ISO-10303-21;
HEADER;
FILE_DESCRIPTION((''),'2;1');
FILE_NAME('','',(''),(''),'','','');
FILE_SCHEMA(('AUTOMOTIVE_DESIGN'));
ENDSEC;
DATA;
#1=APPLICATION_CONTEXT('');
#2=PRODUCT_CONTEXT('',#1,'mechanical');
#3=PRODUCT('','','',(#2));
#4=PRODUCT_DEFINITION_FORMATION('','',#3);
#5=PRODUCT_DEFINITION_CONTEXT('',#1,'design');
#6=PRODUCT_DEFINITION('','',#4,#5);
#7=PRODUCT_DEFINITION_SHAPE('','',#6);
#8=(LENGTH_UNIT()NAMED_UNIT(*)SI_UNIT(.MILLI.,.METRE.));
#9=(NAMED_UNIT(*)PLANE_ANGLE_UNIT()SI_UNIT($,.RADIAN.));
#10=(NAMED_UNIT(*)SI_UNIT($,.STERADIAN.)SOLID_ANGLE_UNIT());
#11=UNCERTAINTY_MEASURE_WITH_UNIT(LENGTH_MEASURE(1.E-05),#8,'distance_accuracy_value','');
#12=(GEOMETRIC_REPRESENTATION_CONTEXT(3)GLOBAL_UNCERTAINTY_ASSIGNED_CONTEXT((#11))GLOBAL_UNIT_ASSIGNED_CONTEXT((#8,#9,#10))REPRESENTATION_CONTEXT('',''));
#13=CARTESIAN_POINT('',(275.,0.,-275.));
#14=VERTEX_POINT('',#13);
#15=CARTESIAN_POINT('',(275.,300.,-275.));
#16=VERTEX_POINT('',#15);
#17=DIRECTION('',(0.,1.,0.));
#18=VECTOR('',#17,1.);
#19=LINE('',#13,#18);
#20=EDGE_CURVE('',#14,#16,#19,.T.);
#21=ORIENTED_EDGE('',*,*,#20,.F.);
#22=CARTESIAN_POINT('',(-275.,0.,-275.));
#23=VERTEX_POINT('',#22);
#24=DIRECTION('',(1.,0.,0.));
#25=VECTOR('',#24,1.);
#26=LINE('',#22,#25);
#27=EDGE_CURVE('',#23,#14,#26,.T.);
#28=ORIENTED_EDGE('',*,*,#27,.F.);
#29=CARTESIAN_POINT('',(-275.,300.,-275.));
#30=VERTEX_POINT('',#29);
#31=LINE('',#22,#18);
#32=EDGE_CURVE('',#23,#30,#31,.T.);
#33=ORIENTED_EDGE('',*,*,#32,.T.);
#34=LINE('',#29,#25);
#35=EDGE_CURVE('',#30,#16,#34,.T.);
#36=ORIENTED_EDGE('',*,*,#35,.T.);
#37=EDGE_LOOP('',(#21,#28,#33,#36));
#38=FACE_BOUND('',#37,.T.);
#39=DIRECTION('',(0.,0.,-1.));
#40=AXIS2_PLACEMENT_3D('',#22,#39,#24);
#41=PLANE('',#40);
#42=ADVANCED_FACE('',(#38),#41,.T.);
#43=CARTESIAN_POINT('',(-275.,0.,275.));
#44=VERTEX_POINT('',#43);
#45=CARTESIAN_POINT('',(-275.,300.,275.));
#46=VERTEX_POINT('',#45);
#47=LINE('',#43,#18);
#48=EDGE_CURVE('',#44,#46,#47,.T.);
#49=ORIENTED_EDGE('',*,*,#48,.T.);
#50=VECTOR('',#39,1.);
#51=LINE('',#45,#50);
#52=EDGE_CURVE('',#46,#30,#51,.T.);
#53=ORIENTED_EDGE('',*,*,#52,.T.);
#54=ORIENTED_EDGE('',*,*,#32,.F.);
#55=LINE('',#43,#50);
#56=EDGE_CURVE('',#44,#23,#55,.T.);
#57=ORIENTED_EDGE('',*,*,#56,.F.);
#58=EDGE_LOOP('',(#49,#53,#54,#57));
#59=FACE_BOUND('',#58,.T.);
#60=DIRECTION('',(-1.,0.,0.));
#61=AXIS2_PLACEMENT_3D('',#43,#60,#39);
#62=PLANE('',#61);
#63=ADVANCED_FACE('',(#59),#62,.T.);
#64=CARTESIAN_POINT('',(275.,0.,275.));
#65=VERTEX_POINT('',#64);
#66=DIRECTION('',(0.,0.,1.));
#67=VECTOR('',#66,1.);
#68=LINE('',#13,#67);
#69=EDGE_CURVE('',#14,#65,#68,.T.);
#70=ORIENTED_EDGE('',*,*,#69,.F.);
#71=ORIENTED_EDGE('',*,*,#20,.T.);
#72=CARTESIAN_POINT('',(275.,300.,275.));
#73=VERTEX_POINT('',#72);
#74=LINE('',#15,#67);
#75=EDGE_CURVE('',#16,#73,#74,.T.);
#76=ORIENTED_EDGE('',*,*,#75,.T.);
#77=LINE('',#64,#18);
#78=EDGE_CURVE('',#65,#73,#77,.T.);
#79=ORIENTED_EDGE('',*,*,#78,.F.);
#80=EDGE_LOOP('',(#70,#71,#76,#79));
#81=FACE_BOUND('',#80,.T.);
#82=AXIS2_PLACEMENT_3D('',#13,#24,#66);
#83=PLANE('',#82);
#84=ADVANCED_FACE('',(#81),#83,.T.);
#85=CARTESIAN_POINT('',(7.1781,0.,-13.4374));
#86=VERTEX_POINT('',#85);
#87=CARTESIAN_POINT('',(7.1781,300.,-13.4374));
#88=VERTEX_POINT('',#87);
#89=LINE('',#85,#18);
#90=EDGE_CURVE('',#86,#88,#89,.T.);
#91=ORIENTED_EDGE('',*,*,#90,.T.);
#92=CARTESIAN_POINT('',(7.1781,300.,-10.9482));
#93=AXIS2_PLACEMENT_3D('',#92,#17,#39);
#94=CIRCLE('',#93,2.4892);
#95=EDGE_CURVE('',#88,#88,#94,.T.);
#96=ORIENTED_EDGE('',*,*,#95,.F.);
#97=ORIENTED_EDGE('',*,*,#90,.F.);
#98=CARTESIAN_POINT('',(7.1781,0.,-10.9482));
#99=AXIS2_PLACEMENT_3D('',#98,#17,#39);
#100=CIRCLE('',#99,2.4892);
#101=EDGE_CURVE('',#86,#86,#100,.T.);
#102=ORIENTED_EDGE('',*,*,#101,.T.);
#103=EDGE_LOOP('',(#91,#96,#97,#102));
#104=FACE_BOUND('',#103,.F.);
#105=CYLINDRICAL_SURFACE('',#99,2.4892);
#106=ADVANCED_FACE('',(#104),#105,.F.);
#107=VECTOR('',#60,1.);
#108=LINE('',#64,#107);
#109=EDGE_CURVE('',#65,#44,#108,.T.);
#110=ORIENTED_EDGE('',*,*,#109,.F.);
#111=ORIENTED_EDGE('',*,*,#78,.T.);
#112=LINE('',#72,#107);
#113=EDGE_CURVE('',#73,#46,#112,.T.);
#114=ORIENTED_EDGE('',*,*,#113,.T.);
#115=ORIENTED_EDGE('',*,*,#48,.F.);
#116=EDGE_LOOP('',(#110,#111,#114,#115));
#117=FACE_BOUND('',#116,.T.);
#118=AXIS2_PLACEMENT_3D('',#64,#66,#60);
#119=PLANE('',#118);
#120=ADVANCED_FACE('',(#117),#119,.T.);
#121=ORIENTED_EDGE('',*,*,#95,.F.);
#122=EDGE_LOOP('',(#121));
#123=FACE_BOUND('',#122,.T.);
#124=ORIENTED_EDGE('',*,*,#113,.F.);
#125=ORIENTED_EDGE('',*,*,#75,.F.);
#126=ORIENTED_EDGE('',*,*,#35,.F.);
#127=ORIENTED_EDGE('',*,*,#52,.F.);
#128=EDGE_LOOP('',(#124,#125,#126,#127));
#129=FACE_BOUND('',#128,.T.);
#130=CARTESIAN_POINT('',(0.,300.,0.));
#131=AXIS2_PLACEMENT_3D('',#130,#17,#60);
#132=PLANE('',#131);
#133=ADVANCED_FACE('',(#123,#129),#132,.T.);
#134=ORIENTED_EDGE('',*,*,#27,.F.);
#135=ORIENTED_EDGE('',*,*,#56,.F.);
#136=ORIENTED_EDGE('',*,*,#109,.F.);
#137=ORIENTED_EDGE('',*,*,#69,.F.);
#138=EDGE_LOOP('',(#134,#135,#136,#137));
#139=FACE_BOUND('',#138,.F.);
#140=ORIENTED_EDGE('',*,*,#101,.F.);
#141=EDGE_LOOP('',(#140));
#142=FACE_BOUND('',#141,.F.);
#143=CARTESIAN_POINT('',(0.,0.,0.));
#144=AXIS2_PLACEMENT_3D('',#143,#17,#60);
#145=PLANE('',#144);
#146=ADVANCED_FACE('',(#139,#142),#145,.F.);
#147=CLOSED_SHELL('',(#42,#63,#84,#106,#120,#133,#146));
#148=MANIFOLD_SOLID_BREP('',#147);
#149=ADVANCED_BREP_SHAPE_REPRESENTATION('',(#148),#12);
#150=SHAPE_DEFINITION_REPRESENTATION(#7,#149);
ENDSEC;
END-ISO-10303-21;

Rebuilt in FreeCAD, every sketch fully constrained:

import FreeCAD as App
import Part
import Sketcher
from FreeCAD import Vector

doc = App.newDocument("Part")
body = doc.addObject("PartDesign::Body", "Body")

sketch1 = doc.addObject("Sketcher::SketchObject", "Sketch")
body.addObject(sketch1)
sketch1.AttachmentSupport = (doc.XZ_Plane, [""])
sketch1.MapMode = "FlatFace"
sketch1.addGeometry([
    Part.LineSegment(Vector(-275, 275, 0), Vector(275, 275, 0)),
    Part.LineSegment(Vector(275, 275, 0), Vector(275, -275, 0)),
    Part.LineSegment(Vector(275, -275, 0), Vector(-275, -275, 0)),
    Part.LineSegment(Vector(-275, -275, 0), Vector(-275, 275, 0)),
], False)
sketch1.addConstraint([
    Sketcher.Constraint("Coincident", 0, 2, 1, 1),
    Sketcher.Constraint("Coincident", 1, 2, 2, 1),
    Sketcher.Constraint("Coincident", 2, 2, 3, 1),
    Sketcher.Constraint("Coincident", 3, 2, 0, 1),
    Sketcher.Constraint("Horizontal", 0),
    Sketcher.Constraint("Vertical", 1),
    Sketcher.Constraint("Horizontal", 2),
    Sketcher.Constraint("Vertical", 3),
    Sketcher.Constraint("Symmetric", 0, 2, 2, 2, -1, 1),
    Sketcher.Constraint("Equal", 2, 1),
    Sketcher.Constraint("DistanceX", 0, 1, 0, 2, 550.0),
])
pad1 = doc.addObject("PartDesign::Pad", "Pad")
body.addObject(pad1)
pad1.Profile = sketch1
pad1.Length = 300
pad1.Reversed = True

sketch2 = doc.addObject("Sketcher::SketchObject", "Sketch001")
body.addObject(sketch2)
sketch2.AttachmentSupport = (doc.XZ_Plane, [""])
sketch2.MapMode = "FlatFace"
sketch2.addGeometry(Part.Circle(Vector(7.1781, -10.9482, 0), Vector(0, 0, 1), 2.4892), False)
sketch2.addConstraint([
    Sketcher.Constraint("Diameter", 0, 4.9784),
    Sketcher.Constraint("DistanceX", -1, 1, 0, 3, 7.178),
    Sketcher.Constraint("DistanceY", 0, 3, -1, 1, 10.9482),
])
doc.recompute()
hole = doc.addObject("PartDesign::Hole", "Hole")
body.addObject(hole)
hole.Profile = sketch2
hole.ThreadType = "None"
hole.Diameter = 4.9784
hole.DepthType = "ThroughAll"

doc.recompute()
